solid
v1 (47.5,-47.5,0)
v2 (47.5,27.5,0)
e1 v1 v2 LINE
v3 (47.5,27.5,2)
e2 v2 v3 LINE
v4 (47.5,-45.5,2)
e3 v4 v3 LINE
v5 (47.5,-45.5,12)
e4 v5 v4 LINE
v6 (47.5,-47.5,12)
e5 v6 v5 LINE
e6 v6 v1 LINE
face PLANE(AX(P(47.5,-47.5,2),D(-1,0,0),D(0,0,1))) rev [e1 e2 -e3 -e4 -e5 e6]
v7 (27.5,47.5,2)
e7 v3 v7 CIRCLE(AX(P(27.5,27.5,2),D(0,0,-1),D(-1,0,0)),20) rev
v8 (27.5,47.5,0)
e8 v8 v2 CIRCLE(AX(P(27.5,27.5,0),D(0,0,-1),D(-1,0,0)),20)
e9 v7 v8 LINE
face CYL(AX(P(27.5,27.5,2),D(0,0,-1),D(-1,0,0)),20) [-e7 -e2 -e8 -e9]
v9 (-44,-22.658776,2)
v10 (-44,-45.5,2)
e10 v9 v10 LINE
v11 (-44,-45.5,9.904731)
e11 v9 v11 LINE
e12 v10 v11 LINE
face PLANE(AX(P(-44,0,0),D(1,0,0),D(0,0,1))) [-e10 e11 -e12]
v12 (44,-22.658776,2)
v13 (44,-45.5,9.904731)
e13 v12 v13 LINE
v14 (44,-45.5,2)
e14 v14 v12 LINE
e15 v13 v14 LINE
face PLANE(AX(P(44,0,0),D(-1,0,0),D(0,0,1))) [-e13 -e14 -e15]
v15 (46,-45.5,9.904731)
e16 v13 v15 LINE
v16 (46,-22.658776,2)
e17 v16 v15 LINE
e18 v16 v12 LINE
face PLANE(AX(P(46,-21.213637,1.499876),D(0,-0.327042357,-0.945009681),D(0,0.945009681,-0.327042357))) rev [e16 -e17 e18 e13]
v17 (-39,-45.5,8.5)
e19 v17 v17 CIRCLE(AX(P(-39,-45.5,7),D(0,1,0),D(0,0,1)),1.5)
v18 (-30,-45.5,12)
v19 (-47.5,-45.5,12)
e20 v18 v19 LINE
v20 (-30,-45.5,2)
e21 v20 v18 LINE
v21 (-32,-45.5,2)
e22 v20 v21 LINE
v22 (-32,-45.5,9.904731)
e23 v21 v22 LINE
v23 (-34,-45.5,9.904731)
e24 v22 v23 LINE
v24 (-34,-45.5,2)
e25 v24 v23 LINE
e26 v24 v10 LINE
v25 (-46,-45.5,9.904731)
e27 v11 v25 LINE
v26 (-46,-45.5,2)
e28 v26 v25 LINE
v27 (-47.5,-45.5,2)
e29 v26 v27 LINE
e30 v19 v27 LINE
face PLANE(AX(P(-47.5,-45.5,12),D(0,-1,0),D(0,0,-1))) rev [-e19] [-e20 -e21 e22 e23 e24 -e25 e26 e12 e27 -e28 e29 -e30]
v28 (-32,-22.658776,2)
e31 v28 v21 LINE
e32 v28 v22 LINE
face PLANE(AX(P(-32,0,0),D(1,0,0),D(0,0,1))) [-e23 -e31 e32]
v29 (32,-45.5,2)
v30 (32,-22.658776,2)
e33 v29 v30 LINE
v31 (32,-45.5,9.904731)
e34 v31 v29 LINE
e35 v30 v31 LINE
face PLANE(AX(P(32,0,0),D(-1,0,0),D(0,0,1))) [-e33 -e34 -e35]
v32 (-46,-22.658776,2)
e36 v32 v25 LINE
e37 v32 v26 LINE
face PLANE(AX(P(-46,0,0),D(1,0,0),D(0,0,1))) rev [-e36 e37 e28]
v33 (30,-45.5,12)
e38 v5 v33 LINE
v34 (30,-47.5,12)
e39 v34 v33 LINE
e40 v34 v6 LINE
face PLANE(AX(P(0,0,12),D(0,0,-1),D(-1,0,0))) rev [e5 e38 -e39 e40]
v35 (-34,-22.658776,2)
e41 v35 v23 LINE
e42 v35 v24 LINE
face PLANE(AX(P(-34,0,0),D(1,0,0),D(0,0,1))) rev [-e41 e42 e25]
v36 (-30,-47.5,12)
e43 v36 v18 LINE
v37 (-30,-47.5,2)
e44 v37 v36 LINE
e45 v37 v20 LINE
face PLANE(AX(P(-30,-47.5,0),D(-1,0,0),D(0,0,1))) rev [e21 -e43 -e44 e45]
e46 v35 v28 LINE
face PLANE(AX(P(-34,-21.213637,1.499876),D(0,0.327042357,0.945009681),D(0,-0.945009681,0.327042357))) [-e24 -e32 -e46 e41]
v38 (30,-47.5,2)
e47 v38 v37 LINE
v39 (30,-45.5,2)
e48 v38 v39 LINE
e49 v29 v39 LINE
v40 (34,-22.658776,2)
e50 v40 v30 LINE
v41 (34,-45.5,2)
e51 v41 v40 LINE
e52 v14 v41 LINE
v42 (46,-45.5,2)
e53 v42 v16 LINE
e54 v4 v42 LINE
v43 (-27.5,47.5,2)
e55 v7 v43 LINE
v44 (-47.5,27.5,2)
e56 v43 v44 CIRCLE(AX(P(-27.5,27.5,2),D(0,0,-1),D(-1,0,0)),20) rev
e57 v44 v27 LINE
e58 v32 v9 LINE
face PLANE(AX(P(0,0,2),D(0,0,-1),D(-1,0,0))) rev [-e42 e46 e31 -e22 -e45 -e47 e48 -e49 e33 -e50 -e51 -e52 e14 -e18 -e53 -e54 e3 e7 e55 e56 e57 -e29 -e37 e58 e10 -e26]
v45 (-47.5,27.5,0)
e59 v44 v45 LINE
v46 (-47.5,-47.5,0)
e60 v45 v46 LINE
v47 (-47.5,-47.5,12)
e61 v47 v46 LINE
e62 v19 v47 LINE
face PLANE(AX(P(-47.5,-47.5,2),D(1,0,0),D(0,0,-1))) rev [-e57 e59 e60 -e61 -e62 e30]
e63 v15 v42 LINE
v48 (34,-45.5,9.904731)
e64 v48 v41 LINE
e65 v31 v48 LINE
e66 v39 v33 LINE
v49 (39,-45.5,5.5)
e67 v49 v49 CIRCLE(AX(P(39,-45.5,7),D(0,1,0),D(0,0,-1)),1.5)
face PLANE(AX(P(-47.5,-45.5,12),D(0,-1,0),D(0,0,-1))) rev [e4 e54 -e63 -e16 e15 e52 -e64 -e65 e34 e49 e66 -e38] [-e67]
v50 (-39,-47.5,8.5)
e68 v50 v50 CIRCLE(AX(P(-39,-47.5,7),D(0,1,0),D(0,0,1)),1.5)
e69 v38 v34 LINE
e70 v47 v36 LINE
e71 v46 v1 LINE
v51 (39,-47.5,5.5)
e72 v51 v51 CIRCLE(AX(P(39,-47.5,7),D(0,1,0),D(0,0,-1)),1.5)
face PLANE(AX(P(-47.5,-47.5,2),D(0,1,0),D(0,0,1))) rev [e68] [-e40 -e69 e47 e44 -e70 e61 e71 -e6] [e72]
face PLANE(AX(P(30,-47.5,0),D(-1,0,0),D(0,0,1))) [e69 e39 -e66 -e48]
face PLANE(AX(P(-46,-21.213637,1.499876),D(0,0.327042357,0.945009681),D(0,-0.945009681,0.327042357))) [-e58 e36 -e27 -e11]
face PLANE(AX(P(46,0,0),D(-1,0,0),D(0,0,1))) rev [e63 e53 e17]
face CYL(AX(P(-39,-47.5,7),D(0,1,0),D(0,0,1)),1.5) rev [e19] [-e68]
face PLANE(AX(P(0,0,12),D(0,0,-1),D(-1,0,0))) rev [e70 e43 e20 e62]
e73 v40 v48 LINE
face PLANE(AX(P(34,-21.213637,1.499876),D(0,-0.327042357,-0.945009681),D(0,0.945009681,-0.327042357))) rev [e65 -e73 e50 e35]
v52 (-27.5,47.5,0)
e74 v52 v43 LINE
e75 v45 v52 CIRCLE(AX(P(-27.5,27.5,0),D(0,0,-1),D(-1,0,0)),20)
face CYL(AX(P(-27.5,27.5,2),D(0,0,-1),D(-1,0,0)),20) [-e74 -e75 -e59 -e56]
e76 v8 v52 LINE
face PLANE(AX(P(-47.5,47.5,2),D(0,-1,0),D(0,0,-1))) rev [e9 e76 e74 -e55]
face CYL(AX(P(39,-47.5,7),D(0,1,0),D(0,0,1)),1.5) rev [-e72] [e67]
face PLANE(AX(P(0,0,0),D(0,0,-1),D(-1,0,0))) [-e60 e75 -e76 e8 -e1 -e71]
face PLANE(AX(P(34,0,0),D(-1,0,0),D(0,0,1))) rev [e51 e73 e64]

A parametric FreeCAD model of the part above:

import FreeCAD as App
import Part
import Sketcher
Q = App.Units.Quantity


def edges_at(feature, points):
    """Names of the edges that pass closest to the given points."""
    edges = feature.Shape.Edges
    near = lambda p: min(range(len(edges)), key=lambda i: edges[i].distToShape(Part.Vertex(*p))[0])
    return sorted({f"Edge{near(p) + 1}" for p in points})

doc = App.newDocument("Part")
body = doc.addObject("PartDesign::Body", "Body")

# Sketch on XY plane
sketch1 = doc.addObject("Sketcher::SketchObject", "Sketch")
body.addObject(sketch1)
sketch1.AttachmentSupport = (doc.XY_Plane, [""])
sketch1.MapMode = "FlatFace"
sketch1.addGeometry(Part.LineSegment(App.Vector(-48, 48, 0), App.Vector(-48, -48, 0)), False)
sketch1.addGeometry(Part.LineSegment(App.Vector(-48, -48, 0), App.Vector(48, -48, 0)), False)
sketch1.addGeometry(Part.LineSegment(App.Vector(48, -48, 0), App.Vector(48, 48, 0)), False)
sketch1.addGeometry(Part.LineSegment(App.Vector(48, 48, 0), App.Vector(-48, 48, 0)), False)
sketch1.addConstraint(Sketcher.Constraint("Coincident", 0, 2, 1, 1))
sketch1.addConstraint(Sketcher.Constraint("Coincident", 1, 2, 2, 1))
sketch1.addConstraint(Sketcher.Constraint("Coincident", 2, 2, 3, 1))
sketch1.addConstraint(Sketcher.Constraint("Coincident", 3, 2, 0, 1))
sketch1.addConstraint(Sketcher.Constraint("Vertical", 0))
sketch1.addConstraint(Sketcher.Constraint("Horizontal", 1))
sketch1.addConstraint(Sketcher.Constraint("Vertical", 2))
sketch1.addConstraint(Sketcher.Constraint("Horizontal", 3))
sketch1.addConstraint(Sketcher.Constraint("Symmetric", 0, 2, 2, 2, -1, 1))
sketch1.addConstraint(Sketcher.Constraint("Equal", 3, 0))
sketch1.addConstraint(Sketcher.Constraint("DistanceX", 1, 1, 1, 2, Q("95 mm")))
pad1 = doc.addObject("PartDesign::Pad", "Pad")
body.addObject(pad1)
pad1.Profile = sketch1
pad1.Length = 2

# Sketch on XY plane
sketch2 = doc.addObject("Sketcher::SketchObject", "Sketch001")
body.addObject(sketch2)
sketch2.AttachmentSupport = (doc.XY_Plane, [""])
sketch2.MapMode = "FlatFace"
sketch2.AttachmentOffset = App.Placement(App.Vector(0, 0, 2), App.Rotation())
sketch2.addGeometry(Part.LineSegment(App.Vector(-47.5, -45.5, 0), App.Vector(-47.5, -47.5, 0)), False)
sketch2.addGeometry(Part.LineSegment(App.Vector(-47.5, -47.5, 0), App.Vector(47.5, -47.5, 0)), False)
sketch2.addGeometry(Part.LineSegment(App.Vector(47.5, -47.5, 0), App.Vector(47.5, -45.5, 0)), False)
sketch2.addGeometry(Part.LineSegment(App.Vector(47.5, -45.5, 0), App.Vector(-47.5, -45.5, 0)), False)
sketch2.addConstraint(Sketcher.Constraint("Coincident", 0, 2, 1, 1))
sketch2.addConstraint(Sketcher.Constraint("Coincident", 1, 2, 2, 1))
sketch2.addConstraint(Sketcher.Constraint("Coincident", 2, 2, 3, 1))
sketch2.addConstraint(Sketcher.Constraint("Coincident", 3, 2, 0, 1))
sketch2.addConstraint(Sketcher.Constraint("Vertical", 0))
sketch2.addConstraint(Sketcher.Constraint("Horizontal", 1))
sketch2.addConstraint(Sketcher.Constraint("Vertical", 2))
sketch2.addConstraint(Sketcher.Constraint("Horizontal", 3))
sketch2.addConstraint(Sketcher.Constraint("DistanceX", 1, 1, 1, 2, Q("95 mm")))
sketch2.addConstraint(Sketcher.Constraint("DistanceY", 0, 2, 0, 1, Q("2 mm")))
sketch2.addConstraint(Sketcher.Constraint("DistanceX", 0, 2, -1, 1, Q("47.5 mm")))
sketch2.addConstraint(Sketcher.Constraint("DistanceY", 0, 2, -1, 1, Q("47.5 mm")))
pad2 = doc.addObject("PartDesign::Pad", "Pad001")
body.addObject(pad2)
pad2.Profile = sketch2
pad2.Length = 10
doc.recompute()

fillet = doc.addObject("PartDesign::Fillet", "Fillet")
body.addObject(fillet)
fillet.Base = (pad2, edges_at(pad2, [(-47.5, 47.5, 1), (47.5, 47.5, 1)]))
fillet.Radius = 20

# Sketch on XZ plane
sketch3 = doc.addObject("Sketcher::SketchObject", "Sketch002")
body.addObject(sketch3)
sketch3.AttachmentSupport = (doc.XZ_Plane, [""])
sketch3.MapMode = "FlatFace"
sketch3.AttachmentOffset = App.Placement(App.Vector(0, 0, 45.5), App.Rotation())
sketch3.addGeometry(Part.LineSegment(App.Vector(-30, 2, 0), App.Vector(-30, 12, 0)), False)
sketch3.addGeometry(Part.LineSegment(App.Vector(-30, 12, 0), App.Vector(30, 12, 0)), False)
sketch3.addGeometry(Part.LineSegment(App.Vector(30, 12, 0), App.Vector(30, 2, 0)), False)
sketch3.addGeometry(Part.LineSegment(App.Vector(30, 2, 0), App.Vector(-30, 2, 0)), False)
sketch3.addConstraint(Sketcher.Constraint("Coincident", 0, 2, 1, 1))
sketch3.addConstraint(Sketcher.Constraint("Coincident", 1, 2, 2, 1))
sketch3.addConstraint(Sketcher.Constraint("Coincident", 2, 2, 3, 1))
sketch3.addConstraint(Sketcher.Constraint("Coincident", 3, 2, 0, 1))
sketch3.addConstraint(Sketcher.Constraint("Vertical", 0))
sketch3.addConstraint(Sketcher.Constraint("Horizontal", 1))
sketch3.addConstraint(Sketcher.Constraint("Vertical", 2))
sketch3.addConstraint(Sketcher.Constraint("Horizontal", 3))
sketch3.addConstraint(Sketcher.Constraint("DistanceX", 1, 1, 1, 2, Q("60 mm")))
sketch3.addConstraint(Sketcher.Constraint("DistanceY", 0, 1, 0, 2, Q("10 mm")))
sketch3.addConstraint(Sketcher.Constraint("DistanceX", 0, 2, -1, 1, Q("30 mm")))
sketch3.addConstraint(Sketcher.Constraint("DistanceY", -1, 1, 0, 2, Q("12 mm")))
pocket1 = doc.addObject("PartDesign::Pocket", "Pocket")
body.addObject(pocket1)
pocket1.Profile = sketch3
pocket1.Type = "ThroughAll"
pocket1.Reversed = True

# Sketch on YZ plane
sketch4 = doc.addObject("Sketcher::SketchObject", "Sketch003")
body.addObject(sketch4)
sketch4.AttachmentSupport = (doc.YZ_Plane, [""])
sketch4.MapMode = "FlatFace"
sketch4.AttachmentOffset = App.Placement(App.Vector(0, 0, 33), App.Rotation())
sketch4.addGeometry(Part.LineSegment(App.Vector(-46, 1, 0), App.Vector(-21, 1, 0)), False)
sketch4.addGeometry(Part.LineSegment(App.Vector(-21, 1, 0), App.Vector(-46, 10, 0)), False)
sketch4.addGeometry(Part.LineSegment(App.Vector(-46, 10, 0), App.Vector(-46, 1, 0)), False)
sketch4.addConstraint(Sketcher.Constraint("Coincident", 0, 2, 1, 1))
sketch4.addConstraint(Sketcher.Constraint("Coincident", 1, 2, 2, 1))
sketch4.addConstraint(Sketcher.Constraint("Coincident", 2, 2, 0, 1))
sketch4.addConstraint(Sketcher.Constraint("Horizontal", 0))
sketch4.addConstraint(Sketcher.Constraint("Vertical", 2))
sketch4.addConstraint(Sketcher.Constraint("DistanceX", 0, 1, 0, 2, Q("25 mm")))
sketch4.addConstraint(Sketcher.Constraint("DistanceY", -1, 1, 1, 2, Q("10.151702 mm")))
sketch4.addConstraint(Sketcher.Constraint("DistanceY", 2, 2, 2, 1, Q("8.651826 mm")))
sketch4.addConstraint(Sketcher.Constraint("DistanceX", 0, 2, -1, 1, Q("21.213637 mm")))
pad3 = doc.addObject("PartDesign::Pad", "Pad002")
body.addObject(pad3)
pad3.Profile = sketch4
pad3.Length = 2
pad3.Midplane = True
doc.recompute()

linearpattern = doc.addObject("PartDesign::LinearPattern", "LinearPattern")
body.addObject(linearpattern)
linearpattern.Originals = [pad3]
linearpattern.Direction = (doc.X_Axis, [""])
linearpattern.Mode = "offset"
linearpattern.Offset = 12
linearpattern.Occurrences = 2
body.Tip = linearpattern
doc.recompute()

mirrored = doc.addObject("PartDesign::Mirrored", "Mirrored")
body.addObject(mirrored)
mirrored.Originals = [pad3]
mirrored.MirrorPlane = (doc.YZ_Plane, [""])
body.Tip = mirrored

# Sketch on YZ plane
sketch5 = doc.addObject("Sketcher::SketchObject", "Sketch004")
body.addObject(sketch5)
sketch5.AttachmentSupport = (doc.YZ_Plane, [""])
sketch5.MapMode = "FlatFace"
sketch5.AttachmentOffset = App.Placement(App.Vector(0, 0, -45), App.Rotation())
sketch5.addGeometry(Part.LineSegment(App.Vector(-21, 1, 0), App.Vector(-46, 1, 0)), False)
sketch5.addGeometry(Part.LineSegment(App.Vector(-46, 1, 0), App.Vector(-46, 10, 0)), False)
sketch5.addGeometry(Part.LineSegment(App.Vector(-46, 10, 0), App.Vector(-21, 1, 0)), False)
sketch5.addConstraint(Sketcher.Constraint("Coincident", 0, 2, 1, 1))
sketch5.addConstraint(Sketcher.Constraint("Coincident", 1, 2, 2, 1))
sketch5.addConstraint(Sketcher.Constraint("Coincident", 2, 2, 0, 1))
sketch5.addConstraint(Sketcher.Constraint("Horizontal", 0))
sketch5.addConstraint(Sketcher.Constraint("Vertical", 1))
sketch5.addConstraint(Sketcher.Constraint("DistanceX", 0, 2, 0, 1, Q("25 mm")))
sketch5.addConstraint(Sketcher.Constraint("DistanceY", -1, 1, 1, 2, Q("10.151702 mm")))
sketch5.addConstraint(Sketcher.Constraint("DistanceY", 1, 1, 1, 2, Q("8.651826 mm")))
sketch5.addConstraint(Sketcher.Constraint("DistanceX", 0, 2, -1, 1, Q("46.213637 mm")))
pad4 = doc.addObject("PartDesign::Pad", "Pad003")
body.addObject(pad4)
pad4.Profile = sketch5
pad4.Length = 2
pad4.Midplane = True

# Sketch on XZ plane
sketch6 = doc.addObject("Sketcher::SketchObject", "Sketch005")
body.addObject(sketch6)
sketch6.AttachmentSupport = (doc.XZ_Plane, [""])
sketch6.MapMode = "FlatFace"
sketch6.AttachmentOffset = App.Placement(App.Vector(0, 0, 45.5), App.Rotation())
sketch6.addGeometry(Part.Circle(App.Vector(-39, 7, 0), App.Vector(0, 0, 1), 1.5), False)
sketch6.addGeometry(Part.Circle(App.Vector(39, 7, 0), App.Vector(0, 0, 1), 1.5), False)
sketch6.addConstraint(Sketcher.Constraint("Equal", 0, 1))
sketch6.addConstraint(Sketcher.Constraint("Symmetric", 0, 3, 1, 3, -2))
sketch6.addConstraint(Sketcher.Constraint("Diameter", 0, Q("3 mm")))
sketch6.addConstraint(Sketcher.Constraint("DistanceX", 0, 3, -1, 1, Q("39 mm")))
sketch6.addConstraint(Sketcher.Constraint("DistanceY", -1, 1, 0, 3, Q("7 mm")))
pocket2 = doc.addObject("PartDesign::Pocket", "Pocket001")
body.addObject(pocket2)
pocket2.Profile = sketch6
pocket2.Length = 2
pocket2.Reversed = True

doc.recompute()
